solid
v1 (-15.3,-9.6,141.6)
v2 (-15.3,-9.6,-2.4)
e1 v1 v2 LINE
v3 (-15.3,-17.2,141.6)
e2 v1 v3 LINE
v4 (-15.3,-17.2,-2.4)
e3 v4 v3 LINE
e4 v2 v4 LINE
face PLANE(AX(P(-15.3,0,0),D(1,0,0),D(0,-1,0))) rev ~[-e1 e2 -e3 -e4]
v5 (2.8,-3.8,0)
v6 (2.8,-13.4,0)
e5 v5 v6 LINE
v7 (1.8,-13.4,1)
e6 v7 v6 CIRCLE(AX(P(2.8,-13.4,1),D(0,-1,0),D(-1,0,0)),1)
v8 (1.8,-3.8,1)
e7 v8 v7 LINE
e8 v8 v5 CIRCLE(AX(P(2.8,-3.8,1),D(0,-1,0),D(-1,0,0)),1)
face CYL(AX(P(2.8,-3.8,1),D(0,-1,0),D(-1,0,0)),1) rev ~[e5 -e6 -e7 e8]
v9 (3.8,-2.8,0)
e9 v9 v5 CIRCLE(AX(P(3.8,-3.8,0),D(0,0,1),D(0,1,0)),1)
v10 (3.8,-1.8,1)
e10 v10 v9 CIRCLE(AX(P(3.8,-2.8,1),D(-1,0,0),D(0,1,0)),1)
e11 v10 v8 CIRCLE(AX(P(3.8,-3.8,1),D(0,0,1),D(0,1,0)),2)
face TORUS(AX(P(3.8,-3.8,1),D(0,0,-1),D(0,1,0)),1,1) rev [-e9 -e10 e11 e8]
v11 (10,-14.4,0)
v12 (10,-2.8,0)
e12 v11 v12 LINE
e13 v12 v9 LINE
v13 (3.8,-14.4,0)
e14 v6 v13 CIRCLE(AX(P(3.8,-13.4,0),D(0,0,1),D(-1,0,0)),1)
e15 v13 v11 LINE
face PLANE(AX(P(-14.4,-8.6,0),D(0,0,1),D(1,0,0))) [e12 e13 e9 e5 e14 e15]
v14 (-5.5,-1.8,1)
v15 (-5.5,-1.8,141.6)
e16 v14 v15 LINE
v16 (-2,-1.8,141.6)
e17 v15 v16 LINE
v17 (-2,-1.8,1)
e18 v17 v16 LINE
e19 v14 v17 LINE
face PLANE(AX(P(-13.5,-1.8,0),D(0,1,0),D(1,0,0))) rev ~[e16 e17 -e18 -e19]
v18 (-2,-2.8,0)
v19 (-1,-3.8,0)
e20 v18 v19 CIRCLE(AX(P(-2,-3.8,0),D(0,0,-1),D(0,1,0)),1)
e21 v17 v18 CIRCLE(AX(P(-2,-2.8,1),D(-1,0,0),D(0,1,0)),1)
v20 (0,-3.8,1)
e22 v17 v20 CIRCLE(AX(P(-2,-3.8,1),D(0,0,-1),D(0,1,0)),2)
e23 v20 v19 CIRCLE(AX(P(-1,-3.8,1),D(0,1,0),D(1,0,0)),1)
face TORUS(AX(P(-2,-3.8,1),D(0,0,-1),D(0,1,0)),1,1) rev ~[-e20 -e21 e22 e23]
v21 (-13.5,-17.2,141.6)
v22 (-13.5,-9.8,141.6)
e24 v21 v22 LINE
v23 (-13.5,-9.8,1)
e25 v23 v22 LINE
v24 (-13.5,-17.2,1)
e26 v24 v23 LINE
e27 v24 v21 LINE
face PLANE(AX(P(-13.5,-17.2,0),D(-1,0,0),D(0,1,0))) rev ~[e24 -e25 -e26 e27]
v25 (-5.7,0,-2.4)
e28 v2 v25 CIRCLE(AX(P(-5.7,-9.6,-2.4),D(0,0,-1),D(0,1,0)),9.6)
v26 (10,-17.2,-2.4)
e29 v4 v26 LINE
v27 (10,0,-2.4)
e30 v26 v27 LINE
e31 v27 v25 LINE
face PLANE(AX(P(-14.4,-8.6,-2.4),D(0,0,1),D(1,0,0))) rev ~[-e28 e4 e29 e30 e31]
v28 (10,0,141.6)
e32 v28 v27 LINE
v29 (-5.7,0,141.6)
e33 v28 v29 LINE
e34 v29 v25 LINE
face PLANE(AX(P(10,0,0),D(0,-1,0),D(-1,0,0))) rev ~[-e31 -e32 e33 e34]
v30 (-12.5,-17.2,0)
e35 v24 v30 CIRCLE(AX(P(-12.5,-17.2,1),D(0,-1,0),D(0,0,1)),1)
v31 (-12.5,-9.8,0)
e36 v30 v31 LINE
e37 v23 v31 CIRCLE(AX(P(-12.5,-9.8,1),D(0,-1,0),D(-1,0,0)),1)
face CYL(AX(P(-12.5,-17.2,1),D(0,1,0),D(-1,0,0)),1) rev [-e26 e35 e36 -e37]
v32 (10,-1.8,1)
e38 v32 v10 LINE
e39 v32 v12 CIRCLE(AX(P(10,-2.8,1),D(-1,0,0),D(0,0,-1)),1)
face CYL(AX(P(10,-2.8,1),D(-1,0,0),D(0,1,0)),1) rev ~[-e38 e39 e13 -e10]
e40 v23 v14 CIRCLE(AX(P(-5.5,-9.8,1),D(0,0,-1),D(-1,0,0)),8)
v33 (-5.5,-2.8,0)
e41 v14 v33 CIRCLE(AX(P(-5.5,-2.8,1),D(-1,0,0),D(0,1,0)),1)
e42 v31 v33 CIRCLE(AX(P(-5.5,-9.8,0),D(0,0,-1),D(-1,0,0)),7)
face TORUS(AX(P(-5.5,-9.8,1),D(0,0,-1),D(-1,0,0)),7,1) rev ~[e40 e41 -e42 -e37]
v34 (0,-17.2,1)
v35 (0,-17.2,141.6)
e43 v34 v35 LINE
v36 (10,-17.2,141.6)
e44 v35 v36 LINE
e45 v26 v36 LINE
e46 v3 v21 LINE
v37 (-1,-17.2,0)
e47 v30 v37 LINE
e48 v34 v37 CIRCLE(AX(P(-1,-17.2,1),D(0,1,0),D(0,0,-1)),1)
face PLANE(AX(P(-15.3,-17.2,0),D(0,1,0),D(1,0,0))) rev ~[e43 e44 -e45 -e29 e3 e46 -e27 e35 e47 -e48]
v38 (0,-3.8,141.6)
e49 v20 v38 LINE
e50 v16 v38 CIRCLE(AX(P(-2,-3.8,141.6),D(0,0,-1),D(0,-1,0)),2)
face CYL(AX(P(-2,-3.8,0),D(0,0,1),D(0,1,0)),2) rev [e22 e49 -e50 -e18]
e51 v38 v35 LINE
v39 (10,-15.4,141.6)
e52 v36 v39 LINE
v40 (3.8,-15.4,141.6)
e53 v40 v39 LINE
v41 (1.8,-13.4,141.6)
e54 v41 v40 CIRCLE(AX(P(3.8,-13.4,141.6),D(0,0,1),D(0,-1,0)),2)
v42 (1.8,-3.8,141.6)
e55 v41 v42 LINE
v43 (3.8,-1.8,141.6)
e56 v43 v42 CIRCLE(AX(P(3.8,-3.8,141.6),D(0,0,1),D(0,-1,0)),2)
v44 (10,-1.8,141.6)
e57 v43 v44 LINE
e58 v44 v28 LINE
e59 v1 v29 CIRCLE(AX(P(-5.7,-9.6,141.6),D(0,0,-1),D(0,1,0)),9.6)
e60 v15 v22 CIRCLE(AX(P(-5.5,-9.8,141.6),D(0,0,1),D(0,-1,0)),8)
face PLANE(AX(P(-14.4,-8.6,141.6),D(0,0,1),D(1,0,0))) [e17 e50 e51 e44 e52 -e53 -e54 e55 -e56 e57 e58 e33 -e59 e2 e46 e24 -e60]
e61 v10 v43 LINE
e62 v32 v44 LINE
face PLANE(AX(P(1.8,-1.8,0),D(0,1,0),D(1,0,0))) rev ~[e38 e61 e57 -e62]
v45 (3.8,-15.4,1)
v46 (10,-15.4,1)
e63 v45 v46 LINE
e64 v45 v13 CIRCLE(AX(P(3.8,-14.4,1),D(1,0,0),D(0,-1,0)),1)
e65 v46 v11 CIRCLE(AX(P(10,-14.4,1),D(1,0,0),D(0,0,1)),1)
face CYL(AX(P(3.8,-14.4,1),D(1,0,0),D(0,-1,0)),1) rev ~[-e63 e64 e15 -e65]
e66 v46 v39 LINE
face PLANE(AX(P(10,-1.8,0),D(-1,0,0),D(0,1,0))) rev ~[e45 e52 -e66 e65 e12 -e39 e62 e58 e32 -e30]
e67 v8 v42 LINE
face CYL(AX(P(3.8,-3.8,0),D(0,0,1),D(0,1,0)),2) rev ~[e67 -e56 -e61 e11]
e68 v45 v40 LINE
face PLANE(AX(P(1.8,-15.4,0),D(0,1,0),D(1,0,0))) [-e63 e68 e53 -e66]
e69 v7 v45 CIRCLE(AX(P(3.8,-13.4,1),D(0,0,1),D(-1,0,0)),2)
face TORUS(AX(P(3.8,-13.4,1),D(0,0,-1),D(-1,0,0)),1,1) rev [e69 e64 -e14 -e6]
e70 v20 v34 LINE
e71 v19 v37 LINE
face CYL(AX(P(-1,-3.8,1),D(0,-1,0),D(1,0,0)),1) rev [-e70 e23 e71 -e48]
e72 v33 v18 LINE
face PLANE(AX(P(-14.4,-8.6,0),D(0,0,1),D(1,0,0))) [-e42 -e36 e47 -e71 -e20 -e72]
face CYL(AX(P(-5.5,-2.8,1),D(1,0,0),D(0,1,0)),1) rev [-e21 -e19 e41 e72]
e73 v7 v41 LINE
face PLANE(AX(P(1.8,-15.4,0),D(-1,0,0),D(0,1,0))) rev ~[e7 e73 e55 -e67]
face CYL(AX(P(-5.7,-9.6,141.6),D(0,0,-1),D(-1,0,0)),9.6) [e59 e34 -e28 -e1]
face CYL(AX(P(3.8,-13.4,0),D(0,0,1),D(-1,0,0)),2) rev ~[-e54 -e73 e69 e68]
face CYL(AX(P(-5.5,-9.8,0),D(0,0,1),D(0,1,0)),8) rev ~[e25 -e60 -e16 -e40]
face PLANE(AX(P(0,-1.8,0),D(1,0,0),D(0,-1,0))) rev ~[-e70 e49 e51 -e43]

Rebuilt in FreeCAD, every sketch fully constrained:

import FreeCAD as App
import Part
import Sketcher

V = App.Vector
Q = App.Units.Quantity


def edges_at(feature, points):
    """Names of the edges that pass closest to the given points."""
    edges = feature.Shape.Edges
    near = lambda p: min(range(len(edges)), key=lambda i: edges[i].distToShape(Part.Vertex(*p))[0])
    return sorted({f"Edge{near(p) + 1}" for p in points})


def add_polygon(sketch, points):
    """Adds a closed chain of lines whose ends are joined by coincident constraints."""
    first, n = sketch.GeometryCount, len(points)
    for a, b in zip(points, points[1:] + points[:1]):
        sketch.addGeometry(Part.LineSegment(App.Vector(*a, 0), App.Vector(*b, 0)), False)
    for i in range(n):
        sketch.addConstraint(Sketcher.Constraint("Coincident", first + i, 2, first + (i + 1) % n, 1))

doc = App.newDocument("Part")
body = doc.addObject("PartDesign::Body", "Body")

# Sketch on XY plane
sketch1 = body.newObject("Sketcher::SketchObject", "Sketch")
sketch1.AttachmentSupport = (doc.getObject("XY_Plane"), [""])
sketch1.MapMode = "FlatFace"
add_polygon(sketch1, [(-15, 0), (-15, -17), (10, -17), (10, 0)])  # lines 0-3
sketch1.addConstraint([
    Sketcher.Constraint("Vertical", 0),
    Sketcher.Constraint("Horizontal", 1),
    Sketcher.Constraint("Vertical", 2),
    Sketcher.Constraint("Horizontal", 3),
    Sketcher.Constraint("PointOnObject", 2, 2, -1),
    Sketcher.Constraint("DistanceX", 1, 1, 1, 2, Q("25.3 mm")),
    Sketcher.Constraint("DistanceY", 0, 2, 0, 1, Q("17.2 mm")),
    Sketcher.Constraint("DistanceX", -1, 1, 1, 2, Q("10 mm")),
])
pad1 = body.newObject("PartDesign::Pad", "Pad")
pad1.Profile = sketch1
pad1.Length = 2.4
pad1.Reversed = True

# Sketch on XY plane
sketch2 = body.newObject("Sketcher::SketchObject", "Sketch001")
sketch2.AttachmentSupport = (doc.getObject("XY_Plane"), [""])
sketch2.MapMode = "FlatFace"
add_polygon(sketch2, [(-15.3, 0), (-15.3, -17.2), (-13.5, -17.2), (-13.5, -1.8), (0, -1.8), (0, -17.2), (10, -17.2), (10, -15.4), (1.8, -15.4), (1.8, -1.8), (10, -1.8), (10, 0)])  # lines 0-11
sketch2.addConstraint([
    Sketcher.Constraint("Vertical", 0),
    Sketcher.Constraint("Horizontal", 1),
    Sketcher.Constraint("Vertical", 2),
    Sketcher.Constraint("Horizontal", 3),
    Sketcher.Constraint("Vertical", 4),
    Sketcher.Constraint("Horizontal", 5),
    Sketcher.Constraint("Vertical", 6),
    Sketcher.Constraint("Horizontal", 7),
    Sketcher.Constraint("Vertical", 8),
    Sketcher.Constraint("Horizontal", 9),
    Sketcher.Constraint("Vertical", 10),
    Sketcher.Constraint("Horizontal", 11),
    Sketcher.Constraint("PointOnObject", 3, 2, -2),
    Sketcher.Constraint("PointOnObject", 10, 2, -1),
    Sketcher.Constraint("Horizontal", 1, 2, 4, 2),
    Sketcher.Constraint("Horizontal", 3, 2, 8, 2),
    Sketcher.Constraint("Vertical", 6, 2, 9, 2),
    Sketcher.Constraint("Equal", 1, 6),
    Sketcher.Constraint("Equal", 6, 10),
    Sketcher.Constraint("DistanceX", 5, 1, 5, 2, Q("10 mm")),
    Sketcher.Constraint("DistanceX", 1, 1, 1, 2, Q("1.8 mm")),
    Sketcher.Constraint("DistanceX", 3, 1, 3, 2, Q("13.5 mm")),
    Sketcher.Constraint("DistanceX", 7, 2, 7, 1, Q("8.2 mm")),
    Sketcher.Constraint("DistanceY", 0, 2, 0, 1, Q("17.2 mm")),
])
pad2 = body.newObject("PartDesign::Pad", "Pad001")
pad2.Profile = sketch2
pad2.Length = 141.6
doc.recompute()

fillet = body.newObject("PartDesign::Fillet", "Fillet")
fillet.Base = (pad2, edges_at(pad2, [(-13.5, -1.8, 70.8)]))
fillet.Radius = 8
doc.recompute()

fillet2 = body.newObject("PartDesign::Fillet", "Fillet001")
fillet2.Base = (fillet, edges_at(fillet, [(-15.3, 0, 69.6)]))
fillet2.Radius = 9.6
doc.recompute()

fillet3 = body.newObject("PartDesign::Fillet", "Fillet002")
fillet3.Base = (fillet2, edges_at(fillet2, [(0, -1.8, 70.8), (1.8, -1.8, 70.8), (1.8, -15.4, 70.8)]))
fillet3.Radius = 2
doc.recompute()

fillet4 = body.newObject("PartDesign::Fillet", "Fillet003")
fillet4.Base = (fillet3, edges_at(fillet3, [
    (6.9, -15.4, 0),
    (2.386, -14.814, 0),
    (1.8, -8.6, 0),
    (2.386, -2.386, 0),
    (6.9, -1.8, 0),
    (0, -10.5, 0),
    (-0.586, -2.386, 0),
    (-3.75, -1.8, 0),
    (-11.157, -4.143, 0),
    (-13.5, -13.5, 0),
]))
fillet4.Radius = 1

doc.recompute()
